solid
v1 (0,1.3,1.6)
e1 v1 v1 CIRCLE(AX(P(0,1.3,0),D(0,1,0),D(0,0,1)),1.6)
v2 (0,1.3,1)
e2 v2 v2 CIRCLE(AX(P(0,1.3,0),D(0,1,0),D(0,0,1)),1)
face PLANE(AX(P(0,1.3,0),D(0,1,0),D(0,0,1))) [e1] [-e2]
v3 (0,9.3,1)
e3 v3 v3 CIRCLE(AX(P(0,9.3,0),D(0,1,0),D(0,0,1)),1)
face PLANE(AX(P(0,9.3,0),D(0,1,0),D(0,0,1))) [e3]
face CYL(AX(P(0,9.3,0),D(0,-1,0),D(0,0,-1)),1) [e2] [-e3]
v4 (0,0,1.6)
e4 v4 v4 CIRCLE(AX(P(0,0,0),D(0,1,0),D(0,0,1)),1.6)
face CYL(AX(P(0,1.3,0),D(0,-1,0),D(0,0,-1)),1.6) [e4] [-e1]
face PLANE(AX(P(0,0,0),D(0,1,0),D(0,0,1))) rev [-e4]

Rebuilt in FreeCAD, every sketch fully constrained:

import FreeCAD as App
import Part
import Sketcher

V = App.Vector
Q = App.Units.Quantity

doc = App.newDocument("Part")
body = doc.addObject("PartDesign::Body", "Body")

sketch1 = body.newObject("Sketcher::SketchObject", "Sketch")
sketch1.AttachmentSupport = (doc.getObject("XZ_Plane"), [""])
sketch1.MapMode = "FlatFace"
sketch1.addGeometry(Part.Circle(V(0, 0, 0), V(0, 0, 1), 1.6), False)
sketch1.addConstraint(Sketcher.Constraint("Coincident", 0, 3, -1, 1))
sketch1.addConstraint(Sketcher.Constraint("Diameter", 0, Q("3.2 mm")))
pad1 = body.newObject("PartDesign::Pad", "Pad")
pad1.Profile = sketch1
pad1.Length = 1.3
pad1.Reversed = True

sketch2 = body.newObject("Sketcher::SketchObject", "Sketch001")
sketch2.AttachmentSupport = (doc.getObject("XZ_Plane"), [""])
sketch2.MapMode = "FlatFace"
sketch2.AttachmentOffset = App.Placement(V(0, 0, -1.3), App.Rotation())
sketch2.addGeometry(Part.Circle(V(0, 0, 0), V(0, 0, 1), 1), False)
sketch2.addConstraint(Sketcher.Constraint("Coincident", 0, 3, -1, 1))
sketch2.addConstraint(Sketcher.Constraint("Diameter", 0, Q("2 mm")))
pad2 = body.newObject("PartDesign::Pad", "Pad001")
pad2.Profile = sketch2
pad2.Length = 8
pad2.Reversed = True

doc.recompute()
